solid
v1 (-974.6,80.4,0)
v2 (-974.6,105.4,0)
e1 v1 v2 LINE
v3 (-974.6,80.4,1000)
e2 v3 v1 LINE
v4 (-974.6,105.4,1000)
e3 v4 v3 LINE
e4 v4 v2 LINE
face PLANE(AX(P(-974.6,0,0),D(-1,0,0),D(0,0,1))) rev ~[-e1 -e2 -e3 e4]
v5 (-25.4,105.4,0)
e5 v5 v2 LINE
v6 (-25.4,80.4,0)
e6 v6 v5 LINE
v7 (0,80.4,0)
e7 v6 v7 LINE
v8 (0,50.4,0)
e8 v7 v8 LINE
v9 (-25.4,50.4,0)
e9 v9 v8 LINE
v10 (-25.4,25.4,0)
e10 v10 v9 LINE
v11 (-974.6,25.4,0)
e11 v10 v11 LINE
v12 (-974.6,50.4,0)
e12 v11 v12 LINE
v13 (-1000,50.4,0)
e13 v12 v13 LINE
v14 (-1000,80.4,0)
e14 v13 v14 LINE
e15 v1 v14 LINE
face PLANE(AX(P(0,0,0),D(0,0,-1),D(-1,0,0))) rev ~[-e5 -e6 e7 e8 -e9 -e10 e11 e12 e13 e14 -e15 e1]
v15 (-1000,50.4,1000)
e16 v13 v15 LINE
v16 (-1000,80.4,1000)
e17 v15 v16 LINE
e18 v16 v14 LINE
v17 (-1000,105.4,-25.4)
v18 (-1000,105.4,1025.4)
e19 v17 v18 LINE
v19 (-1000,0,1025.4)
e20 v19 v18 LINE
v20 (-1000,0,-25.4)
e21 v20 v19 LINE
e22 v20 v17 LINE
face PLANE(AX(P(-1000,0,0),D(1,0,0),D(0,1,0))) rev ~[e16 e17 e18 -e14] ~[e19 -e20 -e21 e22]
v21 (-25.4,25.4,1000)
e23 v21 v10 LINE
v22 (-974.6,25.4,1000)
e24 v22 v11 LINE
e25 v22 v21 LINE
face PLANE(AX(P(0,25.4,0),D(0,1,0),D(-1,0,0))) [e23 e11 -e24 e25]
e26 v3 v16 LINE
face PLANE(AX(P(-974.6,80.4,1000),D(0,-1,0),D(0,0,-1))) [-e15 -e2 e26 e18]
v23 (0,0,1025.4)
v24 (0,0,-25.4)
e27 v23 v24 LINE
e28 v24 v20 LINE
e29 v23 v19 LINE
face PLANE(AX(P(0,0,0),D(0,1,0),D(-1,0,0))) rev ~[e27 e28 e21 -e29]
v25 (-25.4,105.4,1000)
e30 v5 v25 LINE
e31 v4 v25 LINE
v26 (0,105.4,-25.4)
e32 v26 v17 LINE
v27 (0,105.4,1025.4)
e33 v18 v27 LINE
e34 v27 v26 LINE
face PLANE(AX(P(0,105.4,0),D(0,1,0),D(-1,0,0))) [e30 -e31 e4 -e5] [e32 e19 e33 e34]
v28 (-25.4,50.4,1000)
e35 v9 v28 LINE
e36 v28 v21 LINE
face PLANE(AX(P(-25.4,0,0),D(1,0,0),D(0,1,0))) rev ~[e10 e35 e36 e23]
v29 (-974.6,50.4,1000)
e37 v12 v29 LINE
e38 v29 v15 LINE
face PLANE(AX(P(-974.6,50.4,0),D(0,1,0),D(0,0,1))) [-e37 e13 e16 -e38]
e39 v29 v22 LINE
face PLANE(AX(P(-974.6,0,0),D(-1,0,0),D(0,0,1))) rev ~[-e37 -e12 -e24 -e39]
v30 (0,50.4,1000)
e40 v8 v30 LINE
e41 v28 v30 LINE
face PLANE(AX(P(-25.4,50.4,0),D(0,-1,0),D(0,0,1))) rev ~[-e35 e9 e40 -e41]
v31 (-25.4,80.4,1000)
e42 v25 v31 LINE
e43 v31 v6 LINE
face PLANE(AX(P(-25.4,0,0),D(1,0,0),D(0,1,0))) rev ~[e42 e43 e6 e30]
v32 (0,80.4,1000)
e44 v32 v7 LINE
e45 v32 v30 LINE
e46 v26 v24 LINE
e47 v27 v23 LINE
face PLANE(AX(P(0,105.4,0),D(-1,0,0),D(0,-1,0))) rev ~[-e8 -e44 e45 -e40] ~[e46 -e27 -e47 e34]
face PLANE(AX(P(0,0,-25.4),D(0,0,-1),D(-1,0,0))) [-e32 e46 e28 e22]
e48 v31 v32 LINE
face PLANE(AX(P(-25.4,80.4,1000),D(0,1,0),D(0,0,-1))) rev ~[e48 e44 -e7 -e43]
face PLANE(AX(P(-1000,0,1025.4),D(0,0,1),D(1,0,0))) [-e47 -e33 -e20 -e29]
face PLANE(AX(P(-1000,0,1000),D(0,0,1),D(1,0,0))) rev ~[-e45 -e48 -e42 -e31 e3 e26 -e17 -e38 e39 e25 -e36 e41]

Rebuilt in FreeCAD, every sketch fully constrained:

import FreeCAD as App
import Part
import Sketcher

V = App.Vector


def add_polygon(sketch, points):
    """Adds a closed chain of lines whose ends are joined by coincident constraints."""
    first, n = sketch.GeometryCount, len(points)
    for a, b in zip(points, points[1:] + points[:1]):
        sketch.addGeometry(Part.LineSegment(App.Vector(*a, 0), App.Vector(*b, 0)), False)
    for i in range(n):
        sketch.addConstraint(Sketcher.Constraint("Coincident", first + i, 2, first + (i + 1) % n, 1))

doc = App.newDocument("Part")
body = doc.addObject("PartDesign::Body", "Body")
body.AllowCompound = True

# Sketch on XZ plane
sketch1 = body.newObject("Sketcher::SketchObject", "Sketch")
sketch1.AttachmentSupport = (doc.getObject("XZ_Plane"), [""])
sketch1.MapMode = "FlatFace"
add_polygon(sketch1, [(0, 1000), (0, 0), (-1000, 0), (-1000, 1000)])  # lines 0-3
sketch1.addConstraint(Sketcher.Constraint("Vertical", 0))
sketch1.addConstraint(Sketcher.Constraint("Horizontal", 1))
sketch1.addConstraint(Sketcher.Constraint("Vertical", 2))
sketch1.addConstraint(Sketcher.Constraint("Horizontal", 3))
sketch1.addConstraint(Sketcher.Constraint("Coincident", 0, 2, -1, 1))
sketch1.addConstraint(Sketcher.Constraint("Equal", 3, 0))
sketch1.addConstraint(Sketcher.Constraint("DistanceX", 1, 2, 1, 1, 1000.0))
pad1 = body.newObject("PartDesign::Pad", "Pad")
pad1.Profile = sketch1
pad1.Length = 25.4
pad1.Reversed = True

# Sketch on YZ plane
sketch2 = body.newObject("Sketcher::SketchObject", "Sketch001")
sketch2.AttachmentSupport = (doc.getObject("YZ_Plane"), [""])
sketch2.MapMode = "FlatFace"
add_polygon(sketch2, [(105, 1000), (25, 1000), (25, 0), (105, 0)])  # lines 0-3
sketch2.addConstraint(Sketcher.Constraint("Horizontal", 0))
sketch2.addConstraint(Sketcher.Constraint("Vertical", 1))
sketch2.addConstraint(Sketcher.Constraint("Horizontal", 2))
sketch2.addConstraint(Sketcher.Constraint("Vertical", 3))
sketch2.addConstraint(Sketcher.Constraint("PointOnObject", 1, 2, -1))
sketch2.addConstraint(Sketcher.Constraint("DistanceX", 0, 2, 0, 1, 80.0))
sketch2.addConstraint(Sketcher.Constraint("DistanceY", 1, 2, 1, 1, 1000.0))
sketch2.addConstraint(Sketcher.Constraint("DistanceX", -1, 1, 0, 2, 25.4))
pad2 = body.newObject("PartDesign::Pad", "Pad001")
pad2.Profile = sketch2
pad2.Length = 25.4
pad2.Reversed = True

# Sketch on YZ plane
sketch3 = body.newObject("Sketcher::SketchObject", "Sketch002")
sketch3.AttachmentSupport = (doc.getObject("YZ_Plane"), [""])
sketch3.MapMode = "FlatFace"
sketch3.AttachmentOffset = App.Placement(V(0, 0, -1000), App.Rotation())
add_polygon(sketch3, [(25, 1000), (105, 1000), (105, 0), (25, 0)])  # lines 0-3
sketch3.addConstraint(Sketcher.Constraint("Horizontal", 0))
sketch3.addConstraint(Sketcher.Constraint("Vertical", 1))
sketch3.addConstraint(Sketcher.Constraint("Horizontal", 2))
sketch3.addConstraint(Sketcher.Constraint("Vertical", 3))
sketch3.addConstraint(Sketcher.Constraint("PointOnObject", 1, 2, -1))
sketch3.addConstraint(Sketcher.Constraint("DistanceX", 0, 1, 0, 2, 80.0))
sketch3.addConstraint(Sketcher.Constraint("DistanceY", 1, 2, 1, 1, 1000.0))
sketch3.addConstraint(Sketcher.Constraint("DistanceX", -1, 1, 0, 2, 105.4))
pad3 = body.newObject("PartDesign::Pad", "Pad002")
pad3.Profile = sketch3
pad3.Length = 25.4

# Sketch on YZ plane
sketch4 = body.newObject("Sketcher::SketchObject", "Sketch003")
sketch4.AttachmentSupport = (doc.getObject("YZ_Plane"), [""])
sketch4.MapMode = "FlatFace"
sketch4.AttachmentOffset = App.Placement(V(0, 0, -25.4), App.Rotation())
add_polygon(sketch4, [(80, 0), (50, 0), (50, 1000), (80, 1000)])  # lines 0-3
sketch4.addConstraint(Sketcher.Constraint("Horizontal", 0))
sketch4.addConstraint(Sketcher.Constraint("Vertical", 1))
sketch4.addConstraint(Sketcher.Constraint("Horizontal", 2))
sketch4.addConstraint(Sketcher.Constraint("Vertical", 3))
sketch4.addConstraint(Sketcher.Constraint("PointOnObject", 0, 2, -1))
sketch4.addConstraint(Sketcher.Constraint("DistanceX", 0, 2, 0, 1, 30.0))
sketch4.addConstraint(Sketcher.Constraint("DistanceY", 1, 1, 1, 2, 1000.0))
sketch4.addConstraint(Sketcher.Constraint("DistanceX", -1, 1, 0, 2, 50.4))
pocket1 = body.newObject("PartDesign::Pocket", "Pocket")
pocket1.Profile = sketch4
pocket1.Length = 25.4
pocket1.Reversed = True

# Sketch on YZ plane
sketch5 = body.newObject("Sketcher::SketchObject", "Sketch004")
sketch5.AttachmentSupport = (doc.getObject("YZ_Plane"), [""])
sketch5.MapMode = "FlatFace"
sketch5.AttachmentOffset = App.Placement(V(0, 0, -974.6), App.Rotation())
add_polygon(sketch5, [(50, 1000), (50, 0), (80, 0), (80, 1000)])  # lines 0-3
sketch5.addConstraint(Sketcher.Constraint("Vertical", 0))
sketch5.addConstraint(Sketcher.Constraint("Horizontal", 1))
sketch5.addConstraint(Sketcher.Constraint("Vertical", 2))
sketch5.addConstraint(Sketcher.Constraint("Horizontal", 3))
sketch5.addConstraint(Sketcher.Constraint("PointOnObject", 0, 2, -1))
sketch5.addConstraint(Sketcher.Constraint("DistanceX", 1, 1, 1, 2, 30.0))
sketch5.addConstraint(Sketcher.Constraint("DistanceY", 0, 2, 0, 1, 1000.0))
sketch5.addConstraint(Sketcher.Constraint("DistanceX", -1, 1, 0, 2, 50.4))
pocket2 = body.newObject("PartDesign::Pocket", "Pocket001")
pocket2.Profile = sketch5
pocket2.Length = 25.4

# Sketch on XY plane
sketch6 = body.newObject("Sketcher::SketchObject", "Sketch005")
sketch6.AttachmentSupport = (doc.getObject("XY_Plane"), [""])
sketch6.MapMode = "FlatFace"
sketch6.AttachmentOffset = App.Placement(V(0, 0, 1000), App.Rotation())
add_polygon(sketch6, [(-1000, 105), (-1000, 0), (0, 0), (0, 105)])  # lines 0-3
sketch6.addConstraint(Sketcher.Constraint("Vertical", 0))
sketch6.addConstraint(Sketcher.Constraint("Horizontal", 1))
sketch6.addConstraint(Sketcher.Constraint("Vertical", 2))
sketch6.addConstraint(Sketcher.Constraint("Horizontal", 3))
sketch6.addConstraint(Sketcher.Constraint("Coincident", 1, 2, -1, 1))
sketch6.addConstraint(Sketcher.Constraint("DistanceX", 1, 1, 1, 2, 1000.0))
sketch6.addConstraint(Sketcher.Constraint("DistanceY", 0, 2, 0, 1, 105.4))
pad4 = body.newObject("PartDesign::Pad", "Pad003")
pad4.Profile = sketch6
pad4.Length = 25.4

# Sketch on XY plane
sketch7 = body.newObject("Sketcher::SketchObject", "Sketch006")
sketch7.AttachmentSupport = (doc.getObject("XY_Plane"), [""])
sketch7.MapMode = "FlatFace"
add_polygon(sketch7, [(-1000, 105), (0, 105), (0, 0), (-1000, 0)])  # lines 0-3
sketch7.addConstraint(Sketcher.Constraint("Horizontal", 0))
sketch7.addConstraint(Sketcher.Constraint("Vertical", 1))
sketch7.addConstraint(Sketcher.Constraint("Horizontal", 2))
sketch7.addConstraint(Sketcher.Constraint("Vertical", 3))
sketch7.addConstraint(Sketcher.Constraint("Coincident", 1, 2, -1, 1))
sketch7.addConstraint(Sketcher.Constraint("DistanceX", 0, 1, 0, 2, 1000.0))
sketch7.addConstraint(Sketcher.Constraint("DistanceY", 1, 2, 1, 1, 105.4))
pad5 = body.newObject("PartDesign::Pad", "Pad004")
pad5.Profile = sketch7
pad5.Length = 25.4
pad5.Reversed = True

doc.recompute()
